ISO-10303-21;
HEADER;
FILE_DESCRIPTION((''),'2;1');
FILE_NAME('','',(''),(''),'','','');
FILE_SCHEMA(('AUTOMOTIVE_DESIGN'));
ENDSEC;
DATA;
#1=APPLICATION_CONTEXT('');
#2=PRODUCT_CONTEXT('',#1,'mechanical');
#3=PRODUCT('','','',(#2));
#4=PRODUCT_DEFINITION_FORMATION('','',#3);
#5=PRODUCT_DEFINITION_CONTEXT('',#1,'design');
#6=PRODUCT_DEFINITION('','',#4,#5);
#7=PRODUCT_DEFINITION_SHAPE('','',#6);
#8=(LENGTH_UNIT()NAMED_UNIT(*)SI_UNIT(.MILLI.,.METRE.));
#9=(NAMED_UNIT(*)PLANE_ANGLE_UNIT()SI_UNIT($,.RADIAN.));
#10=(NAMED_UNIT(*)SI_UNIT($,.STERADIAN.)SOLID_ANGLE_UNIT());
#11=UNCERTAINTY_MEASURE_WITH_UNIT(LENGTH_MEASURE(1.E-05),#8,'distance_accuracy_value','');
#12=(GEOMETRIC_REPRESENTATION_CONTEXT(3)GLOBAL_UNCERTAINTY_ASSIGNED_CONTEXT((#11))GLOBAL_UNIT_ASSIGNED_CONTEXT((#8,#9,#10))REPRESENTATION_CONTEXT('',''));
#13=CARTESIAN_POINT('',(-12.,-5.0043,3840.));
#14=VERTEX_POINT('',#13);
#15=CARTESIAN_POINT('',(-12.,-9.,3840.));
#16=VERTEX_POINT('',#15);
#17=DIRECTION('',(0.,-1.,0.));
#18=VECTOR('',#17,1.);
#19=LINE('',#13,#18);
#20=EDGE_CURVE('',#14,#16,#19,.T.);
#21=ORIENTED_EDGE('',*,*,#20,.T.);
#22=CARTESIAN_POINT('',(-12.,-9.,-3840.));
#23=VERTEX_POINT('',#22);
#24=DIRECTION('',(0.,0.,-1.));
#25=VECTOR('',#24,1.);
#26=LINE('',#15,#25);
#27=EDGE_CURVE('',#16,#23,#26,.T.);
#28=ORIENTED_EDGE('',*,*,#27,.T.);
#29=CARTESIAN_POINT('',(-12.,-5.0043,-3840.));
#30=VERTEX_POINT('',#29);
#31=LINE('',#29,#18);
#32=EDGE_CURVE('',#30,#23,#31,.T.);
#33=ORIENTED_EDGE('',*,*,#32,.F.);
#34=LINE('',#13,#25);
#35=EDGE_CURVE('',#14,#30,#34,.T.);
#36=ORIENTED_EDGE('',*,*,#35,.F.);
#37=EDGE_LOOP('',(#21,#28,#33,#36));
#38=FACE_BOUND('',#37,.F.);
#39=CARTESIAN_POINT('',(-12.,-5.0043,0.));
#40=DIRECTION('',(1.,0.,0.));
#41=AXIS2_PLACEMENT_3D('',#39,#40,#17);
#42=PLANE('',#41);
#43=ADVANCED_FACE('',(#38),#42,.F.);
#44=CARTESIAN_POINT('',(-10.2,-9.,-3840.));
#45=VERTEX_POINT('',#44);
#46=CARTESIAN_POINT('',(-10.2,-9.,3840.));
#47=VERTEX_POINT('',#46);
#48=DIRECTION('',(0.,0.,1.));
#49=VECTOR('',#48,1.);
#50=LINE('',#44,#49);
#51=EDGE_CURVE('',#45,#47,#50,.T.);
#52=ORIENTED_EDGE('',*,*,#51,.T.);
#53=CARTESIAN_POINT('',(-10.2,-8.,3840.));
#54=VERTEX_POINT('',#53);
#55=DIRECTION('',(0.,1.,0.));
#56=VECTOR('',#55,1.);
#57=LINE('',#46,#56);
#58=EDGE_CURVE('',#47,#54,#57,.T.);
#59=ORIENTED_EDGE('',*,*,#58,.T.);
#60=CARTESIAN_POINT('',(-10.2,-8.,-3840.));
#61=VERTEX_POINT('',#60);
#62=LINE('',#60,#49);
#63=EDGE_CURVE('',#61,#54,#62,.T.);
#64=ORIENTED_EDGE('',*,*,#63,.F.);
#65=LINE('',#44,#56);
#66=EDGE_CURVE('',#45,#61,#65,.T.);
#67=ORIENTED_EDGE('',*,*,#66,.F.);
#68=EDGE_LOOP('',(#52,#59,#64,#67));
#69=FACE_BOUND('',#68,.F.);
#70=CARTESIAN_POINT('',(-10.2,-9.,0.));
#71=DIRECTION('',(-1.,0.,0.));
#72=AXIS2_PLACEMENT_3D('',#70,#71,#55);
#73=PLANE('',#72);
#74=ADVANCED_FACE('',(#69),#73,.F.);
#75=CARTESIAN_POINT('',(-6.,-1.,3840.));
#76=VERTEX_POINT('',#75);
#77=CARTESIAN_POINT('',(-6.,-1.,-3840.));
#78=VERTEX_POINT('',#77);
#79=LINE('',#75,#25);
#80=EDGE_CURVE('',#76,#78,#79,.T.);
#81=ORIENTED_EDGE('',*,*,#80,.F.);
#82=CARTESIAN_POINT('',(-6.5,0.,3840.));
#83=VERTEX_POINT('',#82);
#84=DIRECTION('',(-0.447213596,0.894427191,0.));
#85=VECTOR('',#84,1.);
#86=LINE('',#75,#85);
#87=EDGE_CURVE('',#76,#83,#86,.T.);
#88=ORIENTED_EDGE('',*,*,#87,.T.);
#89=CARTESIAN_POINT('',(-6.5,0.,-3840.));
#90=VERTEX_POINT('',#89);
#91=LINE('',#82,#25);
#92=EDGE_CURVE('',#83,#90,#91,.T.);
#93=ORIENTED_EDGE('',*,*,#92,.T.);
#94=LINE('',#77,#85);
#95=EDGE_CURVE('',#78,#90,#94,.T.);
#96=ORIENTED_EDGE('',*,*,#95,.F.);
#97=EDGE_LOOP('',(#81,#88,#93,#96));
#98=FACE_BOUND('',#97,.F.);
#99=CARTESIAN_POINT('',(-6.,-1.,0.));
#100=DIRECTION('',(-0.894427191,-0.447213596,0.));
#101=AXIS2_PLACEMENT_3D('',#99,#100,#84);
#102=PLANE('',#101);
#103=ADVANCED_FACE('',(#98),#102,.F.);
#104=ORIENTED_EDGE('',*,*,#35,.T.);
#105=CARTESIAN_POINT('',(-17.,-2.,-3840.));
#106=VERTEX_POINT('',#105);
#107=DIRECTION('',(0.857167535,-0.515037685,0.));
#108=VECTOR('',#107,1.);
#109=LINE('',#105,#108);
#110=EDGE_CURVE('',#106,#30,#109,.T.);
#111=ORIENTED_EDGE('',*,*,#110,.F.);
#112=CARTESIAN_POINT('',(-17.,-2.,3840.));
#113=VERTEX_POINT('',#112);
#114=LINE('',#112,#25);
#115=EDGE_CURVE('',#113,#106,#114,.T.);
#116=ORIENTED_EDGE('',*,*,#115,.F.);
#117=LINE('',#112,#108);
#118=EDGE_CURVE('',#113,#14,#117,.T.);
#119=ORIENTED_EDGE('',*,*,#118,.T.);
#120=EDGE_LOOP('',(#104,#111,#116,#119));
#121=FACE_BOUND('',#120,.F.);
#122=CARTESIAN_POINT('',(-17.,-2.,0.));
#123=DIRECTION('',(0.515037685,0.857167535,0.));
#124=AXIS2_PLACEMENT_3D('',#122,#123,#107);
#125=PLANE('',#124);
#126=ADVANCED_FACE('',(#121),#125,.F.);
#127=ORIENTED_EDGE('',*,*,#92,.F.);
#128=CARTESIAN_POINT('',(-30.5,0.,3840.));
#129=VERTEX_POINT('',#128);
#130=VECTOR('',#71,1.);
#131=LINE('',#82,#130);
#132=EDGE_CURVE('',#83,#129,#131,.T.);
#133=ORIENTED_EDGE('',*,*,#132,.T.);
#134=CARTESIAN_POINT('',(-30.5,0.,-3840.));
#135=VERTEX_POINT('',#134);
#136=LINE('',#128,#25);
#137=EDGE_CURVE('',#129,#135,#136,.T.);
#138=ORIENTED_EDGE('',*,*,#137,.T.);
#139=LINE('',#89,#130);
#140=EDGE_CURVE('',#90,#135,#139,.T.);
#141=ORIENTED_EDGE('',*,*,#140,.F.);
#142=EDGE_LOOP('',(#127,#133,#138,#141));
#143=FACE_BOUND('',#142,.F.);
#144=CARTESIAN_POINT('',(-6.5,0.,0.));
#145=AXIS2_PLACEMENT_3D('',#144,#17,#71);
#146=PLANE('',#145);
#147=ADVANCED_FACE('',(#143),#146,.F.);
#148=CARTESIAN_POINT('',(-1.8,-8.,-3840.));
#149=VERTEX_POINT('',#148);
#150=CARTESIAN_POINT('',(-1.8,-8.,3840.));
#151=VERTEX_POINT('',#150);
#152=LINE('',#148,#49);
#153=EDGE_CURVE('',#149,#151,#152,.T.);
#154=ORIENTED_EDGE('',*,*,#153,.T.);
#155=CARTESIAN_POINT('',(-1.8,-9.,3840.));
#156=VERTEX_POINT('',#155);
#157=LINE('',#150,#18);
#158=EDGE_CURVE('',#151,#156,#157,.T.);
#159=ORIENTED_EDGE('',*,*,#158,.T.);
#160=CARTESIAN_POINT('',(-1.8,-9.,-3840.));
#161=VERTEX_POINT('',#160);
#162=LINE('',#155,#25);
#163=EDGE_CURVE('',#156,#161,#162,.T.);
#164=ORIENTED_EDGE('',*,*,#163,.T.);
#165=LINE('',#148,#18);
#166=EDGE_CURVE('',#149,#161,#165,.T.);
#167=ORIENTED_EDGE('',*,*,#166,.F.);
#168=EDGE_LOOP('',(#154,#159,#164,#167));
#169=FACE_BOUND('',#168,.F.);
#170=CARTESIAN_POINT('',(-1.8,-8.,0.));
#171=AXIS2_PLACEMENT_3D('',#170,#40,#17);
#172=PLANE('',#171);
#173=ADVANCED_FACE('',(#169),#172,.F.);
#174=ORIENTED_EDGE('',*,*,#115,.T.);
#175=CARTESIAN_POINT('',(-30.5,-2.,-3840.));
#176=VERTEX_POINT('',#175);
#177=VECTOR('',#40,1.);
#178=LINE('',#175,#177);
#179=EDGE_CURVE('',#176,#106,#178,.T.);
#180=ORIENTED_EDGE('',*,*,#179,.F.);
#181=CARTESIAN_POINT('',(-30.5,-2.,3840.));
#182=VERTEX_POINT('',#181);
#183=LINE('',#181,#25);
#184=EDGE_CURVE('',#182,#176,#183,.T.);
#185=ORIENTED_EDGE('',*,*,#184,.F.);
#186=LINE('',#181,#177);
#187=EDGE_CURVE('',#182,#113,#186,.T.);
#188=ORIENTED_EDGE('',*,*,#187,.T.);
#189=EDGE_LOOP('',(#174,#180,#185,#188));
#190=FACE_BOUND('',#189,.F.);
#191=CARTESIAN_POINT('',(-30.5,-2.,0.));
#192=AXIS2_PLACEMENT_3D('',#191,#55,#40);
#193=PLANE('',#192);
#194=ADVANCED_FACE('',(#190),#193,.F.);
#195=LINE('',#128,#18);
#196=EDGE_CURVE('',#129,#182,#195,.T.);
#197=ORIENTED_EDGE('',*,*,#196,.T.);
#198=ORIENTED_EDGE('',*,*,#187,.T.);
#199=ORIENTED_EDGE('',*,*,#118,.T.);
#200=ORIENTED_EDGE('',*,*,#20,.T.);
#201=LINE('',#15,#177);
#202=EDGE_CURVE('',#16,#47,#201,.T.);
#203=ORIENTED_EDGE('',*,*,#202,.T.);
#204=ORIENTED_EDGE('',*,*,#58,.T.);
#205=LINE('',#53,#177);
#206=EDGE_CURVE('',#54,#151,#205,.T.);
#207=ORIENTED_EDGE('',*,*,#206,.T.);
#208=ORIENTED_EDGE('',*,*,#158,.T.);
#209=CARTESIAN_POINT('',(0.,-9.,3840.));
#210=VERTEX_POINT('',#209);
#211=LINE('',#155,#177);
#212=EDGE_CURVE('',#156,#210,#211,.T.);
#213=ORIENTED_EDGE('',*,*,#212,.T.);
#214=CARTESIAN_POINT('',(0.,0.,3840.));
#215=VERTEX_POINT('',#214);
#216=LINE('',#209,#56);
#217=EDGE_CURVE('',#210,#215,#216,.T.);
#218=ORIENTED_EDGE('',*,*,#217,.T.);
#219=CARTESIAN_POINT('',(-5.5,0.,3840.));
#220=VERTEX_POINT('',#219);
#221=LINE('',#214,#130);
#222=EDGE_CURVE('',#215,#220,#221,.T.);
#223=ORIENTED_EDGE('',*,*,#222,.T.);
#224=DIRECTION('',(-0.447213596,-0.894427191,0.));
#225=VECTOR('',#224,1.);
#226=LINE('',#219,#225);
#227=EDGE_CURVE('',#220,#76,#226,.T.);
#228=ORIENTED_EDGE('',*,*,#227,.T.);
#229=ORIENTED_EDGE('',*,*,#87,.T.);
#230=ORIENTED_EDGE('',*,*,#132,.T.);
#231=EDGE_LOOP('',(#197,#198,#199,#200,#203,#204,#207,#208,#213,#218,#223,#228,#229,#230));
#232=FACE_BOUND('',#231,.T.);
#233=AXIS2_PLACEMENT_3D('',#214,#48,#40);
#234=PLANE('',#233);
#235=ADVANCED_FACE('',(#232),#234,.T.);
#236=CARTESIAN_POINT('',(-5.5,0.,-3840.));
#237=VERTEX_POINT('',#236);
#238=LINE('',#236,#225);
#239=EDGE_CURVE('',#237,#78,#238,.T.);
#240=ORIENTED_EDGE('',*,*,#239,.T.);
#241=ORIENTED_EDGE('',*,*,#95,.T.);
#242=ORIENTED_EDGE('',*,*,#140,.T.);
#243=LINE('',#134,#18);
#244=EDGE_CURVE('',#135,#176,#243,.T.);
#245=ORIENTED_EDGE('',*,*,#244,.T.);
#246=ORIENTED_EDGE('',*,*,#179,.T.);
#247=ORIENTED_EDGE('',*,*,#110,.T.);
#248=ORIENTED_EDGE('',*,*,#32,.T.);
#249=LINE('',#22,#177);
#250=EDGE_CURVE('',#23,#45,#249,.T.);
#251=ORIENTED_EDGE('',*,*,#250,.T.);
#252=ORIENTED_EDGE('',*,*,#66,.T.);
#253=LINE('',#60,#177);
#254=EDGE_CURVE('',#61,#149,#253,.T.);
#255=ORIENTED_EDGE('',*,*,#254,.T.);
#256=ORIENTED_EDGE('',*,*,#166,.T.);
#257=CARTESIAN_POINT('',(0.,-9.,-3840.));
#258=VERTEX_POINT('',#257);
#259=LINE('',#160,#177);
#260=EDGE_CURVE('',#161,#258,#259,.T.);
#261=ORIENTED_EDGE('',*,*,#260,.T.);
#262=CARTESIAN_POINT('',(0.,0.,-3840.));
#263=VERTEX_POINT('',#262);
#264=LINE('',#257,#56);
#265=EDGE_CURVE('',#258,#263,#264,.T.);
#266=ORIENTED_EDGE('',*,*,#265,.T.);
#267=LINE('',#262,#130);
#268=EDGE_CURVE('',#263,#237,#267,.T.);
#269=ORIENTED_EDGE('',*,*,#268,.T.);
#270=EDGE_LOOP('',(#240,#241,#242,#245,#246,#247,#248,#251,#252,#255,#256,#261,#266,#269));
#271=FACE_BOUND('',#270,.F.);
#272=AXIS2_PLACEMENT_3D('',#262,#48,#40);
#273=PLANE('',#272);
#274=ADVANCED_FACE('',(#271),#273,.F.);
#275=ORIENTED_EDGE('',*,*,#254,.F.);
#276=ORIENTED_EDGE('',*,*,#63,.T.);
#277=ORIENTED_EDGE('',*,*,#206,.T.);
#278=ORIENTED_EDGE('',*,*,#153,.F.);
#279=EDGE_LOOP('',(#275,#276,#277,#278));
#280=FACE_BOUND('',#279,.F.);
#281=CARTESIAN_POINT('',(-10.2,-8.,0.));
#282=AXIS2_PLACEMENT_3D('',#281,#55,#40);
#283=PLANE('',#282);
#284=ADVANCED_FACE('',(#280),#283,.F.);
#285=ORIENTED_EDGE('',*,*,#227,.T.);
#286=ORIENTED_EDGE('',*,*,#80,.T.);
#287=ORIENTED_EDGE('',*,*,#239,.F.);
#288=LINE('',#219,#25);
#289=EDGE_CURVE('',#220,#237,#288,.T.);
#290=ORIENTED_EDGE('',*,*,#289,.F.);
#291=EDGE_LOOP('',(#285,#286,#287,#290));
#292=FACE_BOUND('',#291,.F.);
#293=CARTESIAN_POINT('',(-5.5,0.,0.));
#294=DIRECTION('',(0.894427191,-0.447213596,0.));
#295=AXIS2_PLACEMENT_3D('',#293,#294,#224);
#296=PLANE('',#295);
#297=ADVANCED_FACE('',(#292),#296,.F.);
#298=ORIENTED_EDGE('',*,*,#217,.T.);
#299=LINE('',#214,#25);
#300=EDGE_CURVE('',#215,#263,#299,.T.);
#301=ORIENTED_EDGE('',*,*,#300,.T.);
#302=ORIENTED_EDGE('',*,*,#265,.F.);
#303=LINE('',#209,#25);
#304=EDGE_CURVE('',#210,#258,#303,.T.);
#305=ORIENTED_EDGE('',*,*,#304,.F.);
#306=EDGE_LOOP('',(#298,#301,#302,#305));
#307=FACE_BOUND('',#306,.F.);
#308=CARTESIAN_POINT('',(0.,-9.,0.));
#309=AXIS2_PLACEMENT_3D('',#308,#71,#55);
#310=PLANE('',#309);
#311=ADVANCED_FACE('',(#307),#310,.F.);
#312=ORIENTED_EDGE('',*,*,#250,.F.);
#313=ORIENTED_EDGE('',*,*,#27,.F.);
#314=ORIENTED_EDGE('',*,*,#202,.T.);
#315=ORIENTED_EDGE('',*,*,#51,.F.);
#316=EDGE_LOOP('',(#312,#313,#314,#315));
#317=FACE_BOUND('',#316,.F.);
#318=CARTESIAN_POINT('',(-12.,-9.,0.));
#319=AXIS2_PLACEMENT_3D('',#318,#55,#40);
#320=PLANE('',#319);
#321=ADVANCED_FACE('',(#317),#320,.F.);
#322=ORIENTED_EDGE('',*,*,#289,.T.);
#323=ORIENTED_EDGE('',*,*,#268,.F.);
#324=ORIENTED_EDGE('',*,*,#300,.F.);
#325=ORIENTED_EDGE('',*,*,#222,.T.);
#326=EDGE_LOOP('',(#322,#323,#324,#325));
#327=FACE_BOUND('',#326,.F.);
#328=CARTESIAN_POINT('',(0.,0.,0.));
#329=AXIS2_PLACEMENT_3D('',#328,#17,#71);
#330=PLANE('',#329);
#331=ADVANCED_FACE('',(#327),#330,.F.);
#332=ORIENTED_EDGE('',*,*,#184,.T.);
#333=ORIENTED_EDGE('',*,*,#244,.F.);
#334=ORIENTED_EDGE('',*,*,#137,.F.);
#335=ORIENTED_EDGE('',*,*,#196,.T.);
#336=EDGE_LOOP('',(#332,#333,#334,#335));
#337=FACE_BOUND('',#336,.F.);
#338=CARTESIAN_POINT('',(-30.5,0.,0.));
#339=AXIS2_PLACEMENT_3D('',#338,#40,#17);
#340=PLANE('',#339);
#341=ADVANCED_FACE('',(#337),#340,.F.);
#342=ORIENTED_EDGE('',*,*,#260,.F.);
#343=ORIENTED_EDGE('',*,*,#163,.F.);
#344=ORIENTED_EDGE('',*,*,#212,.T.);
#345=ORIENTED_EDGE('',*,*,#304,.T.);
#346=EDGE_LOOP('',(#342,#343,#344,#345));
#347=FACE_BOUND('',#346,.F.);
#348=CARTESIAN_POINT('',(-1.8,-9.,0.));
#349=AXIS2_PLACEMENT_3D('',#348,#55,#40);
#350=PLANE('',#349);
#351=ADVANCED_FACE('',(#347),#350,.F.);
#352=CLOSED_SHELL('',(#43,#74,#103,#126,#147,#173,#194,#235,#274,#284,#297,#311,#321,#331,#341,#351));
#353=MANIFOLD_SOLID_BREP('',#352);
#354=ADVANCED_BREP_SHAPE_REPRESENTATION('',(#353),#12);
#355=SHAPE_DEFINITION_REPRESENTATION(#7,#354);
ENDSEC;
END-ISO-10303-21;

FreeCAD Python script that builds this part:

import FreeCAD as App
import Part
import Sketcher

V = App.Vector
Q = App.Units.Quantity


def add_polygon(sketch, points):
    """Adds a closed chain of lines whose ends are joined by coincident constraints."""
    first, n = sketch.GeometryCount, len(points)
    for a, b in zip(points, points[1:] + points[:1]):
        sketch.addGeometry(Part.LineSegment(App.Vector(*a, 0), App.Vector(*b, 0)), False)
    for i in range(n):
        sketch.addConstraint(Sketcher.Constraint("Coincident", first + i, 2, first + (i + 1) % n, 1))

doc = App.newDocument("Part")
params = doc.addObject("Spreadsheet::Sheet", "Params")
for row, (alias, value) in enumerate([
    ("sketch1_height", "9 mm"),
    ("sketch1_width", "24 mm"),
    ("sketch1_height2", "1 mm"),
    ("sketch1_height3", "2 mm"),
    ("sketch1_width2", "1.8 mm"),
    ("pad1_length", "7680 mm"),
], start=1):
    params.set(f"A{row}", alias)
    params.set(f"B{row}", "=" + value)
    params.setAlias(f"B{row}", alias)

body = doc.addObject("PartDesign::Body", "Body")

# Sketch on XY plane
sketch1 = body.newObject("Sketcher::SketchObject", "Sketch")
sketch1.AttachmentSupport = (doc.getObject("XY_Plane"), [""])
sketch1.MapMode = "FlatFace"
add_polygon(sketch1, [(-12, -9), (-10.2, -9), (-10.2, -8), (-1.8, -8), (-1.8, -9), (0, -9), (0, 0), (-5.5, 0), (-6, -1), (-6.5, 0), (-30.5, 0), (-30.5, -2), (-17, -2), (-12, -5)])  # lines 0-13
sketch1.addConstraint(Sketcher.Constraint("Horizontal", 0))
sketch1.addConstraint(Sketcher.Constraint("Vertical", 1))
sketch1.addConstraint(Sketcher.Constraint("Horizontal", 2))
sketch1.addConstraint(Sketcher.Constraint("Vertical", 3))
sketch1.addConstraint(Sketcher.Constraint("Horizontal", 4))
sketch1.addConstraint(Sketcher.Constraint("Vertical", 5))
sketch1.addConstraint(Sketcher.Constraint("Horizontal", 6))
sketch1.addConstraint(Sketcher.Constraint("Horizontal", 9))
sketch1.addConstraint(Sketcher.Constraint("Vertical", 10))
sketch1.addConstraint(Sketcher.Constraint("Horizontal", 11))
sketch1.addConstraint(Sketcher.Constraint("Vertical", 13))
sketch1.addConstraint(Sketcher.Constraint("Coincident", 5, 2, -1, 1))
sketch1.addConstraint(Sketcher.Constraint("PointOnObject", 8, 2, -1))
sketch1.addConstraint(Sketcher.Constraint("Horizontal", 0, 2, 3, 2))
sketch1.addConstraint(Sketcher.Constraint("Equal", 0, 4))
sketch1.addConstraint(Sketcher.Constraint("Equal", 7, 8))
sketch1.addConstraint(Sketcher.Constraint("DistanceY", 5, 1, 5, 2, Q("9 mm")))
sketch1.addConstraint(Sketcher.Constraint("DistanceX", 9, 2, -1, 1, Q("30.5 mm")))
sketch1.addConstraint(Sketcher.Constraint("DistanceX", 9, 2, 9, 1, Q("24 mm")))
sketch1.addConstraint(Sketcher.Constraint("DistanceY", 1, 1, 1, 2, Q("1 mm")))
sketch1.addConstraint(Sketcher.Constraint("DistanceY", 10, 2, 10, 1, Q("2 mm")))
sketch1.addConstraint(Sketcher.Constraint("Angle", 12, Q("-31 deg")))
sketch1.addConstraint(Sketcher.Constraint("DistanceX", 0, 1, 0, 2, Q("1.8 mm")))
sketch1.addConstraint(Sketcher.Constraint("DistanceX", 2, 1, 2, 2, Q("8.4 mm")))
sketch1.addConstraint(Sketcher.Constraint("DistanceX", 6, 2, 6, 1, Q("5.5 mm")))
sketch1.addConstraint(Sketcher.Constraint("DistanceX", 11, 1, 11, 2, Q("13.5 mm")))
sketch1.addConstraint(Sketcher.Constraint("DistanceY", 7, 2, -1, 1, Q("1 mm")))
sketch1.setExpression("Constraints[30]", "Params.sketch1_height")
sketch1.setExpression("Constraints[32]", "Params.sketch1_width")
sketch1.setExpression("Constraints[33]", "Params.sketch1_height2")
sketch1.setExpression("Constraints[34]", "Params.sketch1_height3")
sketch1.setExpression("Constraints[36]", "Params.sketch1_width2")
pad1 = body.newObject("PartDesign::Pad", "Pad")
pad1.Profile = sketch1
pad1.setExpression("Length", "Params.pad1_length")
pad1.Midplane = True

doc.recompute()
